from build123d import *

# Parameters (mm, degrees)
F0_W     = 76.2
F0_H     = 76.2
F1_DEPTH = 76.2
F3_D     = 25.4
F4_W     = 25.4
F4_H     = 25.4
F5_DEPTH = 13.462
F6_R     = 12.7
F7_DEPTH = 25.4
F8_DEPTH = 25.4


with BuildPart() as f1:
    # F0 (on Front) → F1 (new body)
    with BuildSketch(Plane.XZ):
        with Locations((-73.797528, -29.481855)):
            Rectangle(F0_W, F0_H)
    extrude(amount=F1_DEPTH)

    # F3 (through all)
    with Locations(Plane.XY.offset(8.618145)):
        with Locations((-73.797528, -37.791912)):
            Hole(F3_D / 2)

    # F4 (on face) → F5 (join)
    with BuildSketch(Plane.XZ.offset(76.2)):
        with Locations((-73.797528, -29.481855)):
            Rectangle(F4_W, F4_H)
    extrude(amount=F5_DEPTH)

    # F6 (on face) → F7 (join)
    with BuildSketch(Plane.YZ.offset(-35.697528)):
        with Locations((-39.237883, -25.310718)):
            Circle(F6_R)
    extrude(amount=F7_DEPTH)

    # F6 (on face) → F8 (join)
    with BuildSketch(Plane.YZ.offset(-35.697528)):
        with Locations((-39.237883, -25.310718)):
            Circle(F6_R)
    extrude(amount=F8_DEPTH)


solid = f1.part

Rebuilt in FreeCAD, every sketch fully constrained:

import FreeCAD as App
import Part
import Sketcher
Q = App.Units.Quantity


def add_polygon(sketch, points):
    """Adds a closed chain of lines whose ends are joined by coincident constraints."""
    first, n = sketch.GeometryCount, len(points)
    for a, b in zip(points, points[1:] + points[:1]):
        sketch.addGeometry(Part.LineSegment(App.Vector(*a, 0), App.Vector(*b, 0)), False)
    for i in range(n):
        sketch.addConstraint(Sketcher.Constraint("Coincident", first + i, 2, first + (i + 1) % n, 1))

doc = App.newDocument("Part")
body = doc.addObject("PartDesign::Body", "Body")

# Sketch on XZ plane
sketch1 = doc.addObject("Sketcher::SketchObject", "Sketch")
body.addObject(sketch1)
sketch1.AttachmentSupport = (doc.XZ_Plane, [""])
sketch1.MapMode = "FlatFace"
add_polygon(sketch1, [(-112, 9), (-112, -68), (-36, -68), (-36, 9)])  # lines 0-3
sketch1.addConstraint([
    Sketcher.Constraint("Vertical", 0),
    Sketcher.Constraint("Horizontal", 1),
    Sketcher.Constraint("Vertical", 2),
    Sketcher.Constraint("Horizontal", 3),
    Sketcher.Constraint("Equal", 3, 0),
    Sketcher.Constraint("DistanceX", 1, 1, 1, 2, Q("3 in")),
    Sketcher.Constraint("DistanceX", 0, 2, -1, 1, 111.897528),
    Sketcher.Constraint("DistanceY", 0, 2, -1, 1, 67.581855),
])
pad1 = doc.addObject("PartDesign::Pad", "Pad")
body.addObject(pad1)
pad1.Profile = sketch1
pad1.Length = Q("3 in")

# Sketch on XY plane
sketch2 = doc.addObject("Sketcher::SketchObject", "Sketch001")
body.addObject(sketch2)
sketch2.AttachmentSupport = (doc.XY_Plane, [""])
sketch2.MapMode = "FlatFace"
sketch2.AttachmentOffset = App.Placement(App.Vector(0, 0, 8.618145), App.Rotation())
sketch2.addGeometry(Part.Circle(App.Vector(-74, -38, 0), App.Vector(0, 0, 1), 13), False)
sketch2.addConstraint([
    Sketcher.Constraint("Diameter", 0, Q("1 in")),
    Sketcher.Constraint("DistanceX", 0, 3, -1, 1, 73.797528),
    Sketcher.Constraint("DistanceY", 0, 3, -1, 1, 37.791912),
])
doc.recompute()
hole = doc.addObject("PartDesign::Hole", "Hole")
body.addObject(hole)
hole.Profile = sketch2
hole.ThreadType = "None"
hole.Diameter = Q("1 in")
hole.DepthType = "ThroughAll"

# Sketch on XZ plane
sketch3 = doc.addObject("Sketcher::SketchObject", "Sketch002")
body.addObject(sketch3)
sketch3.AttachmentSupport = (doc.XZ_Plane, [""])
sketch3.MapMode = "FlatFace"
sketch3.AttachmentOffset = App.Placement(App.Vector(0, 0, 3 * 25.4), App.Rotation())
add_polygon(sketch3, [(-86, -17), (-86, -42), (-61, -42), (-61, -17)])  # lines 0-3
sketch3.addConstraint([
    Sketcher.Constraint("Vertical", 0),
    Sketcher.Constraint("Horizontal", 1),
    Sketcher.Constraint("Vertical", 2),
    Sketcher.Constraint("Horizontal", 3),
    Sketcher.Constraint("Equal", 3, 0),
    Sketcher.Constraint("DistanceX", 1, 1, 1, 2, Q("1 in")),
    Sketcher.Constraint("DistanceX", 0, 2, -1, 1, 86.497528),
    Sketcher.Constraint("DistanceY", 0, 2, -1, 1, 42.181855),
])
pad2 = doc.addObject("PartDesign::Pad", "Pad001")
body.addObject(pad2)
pad2.Profile = sketch3
pad2.Length = Q("0.53 in")

# Sketch on YZ plane
sketch4 = doc.addObject("Sketcher::SketchObject", "Sketch003")
body.addObject(sketch4)
sketch4.AttachmentSupport = (doc.YZ_Plane, [""])
sketch4.MapMode = "FlatFace"
sketch4.AttachmentOffset = App.Placement(App.Vector(0, 0, -35.697528), App.Rotation())
sketch4.addGeometry(Part.Circle(App.Vector(-39, -25, 0), App.Vector(0, 0, 1), 13), False)
sketch4.addConstraint([
    Sketcher.Constraint("Diameter", 0, Q("1 in")),
    Sketcher.Constraint("DistanceY", 0, 3, -1, 1, 25.310718),
    Sketcher.Constraint("DistanceX", 0, 3, -1, 1, 39.237883),
])
pad3 = doc.addObject("PartDesign::Pad", "Pad002")
body.addObject(pad3)
pad3.Profile = sketch4
pad3.Length = Q("1 in")

# Sketch on YZ plane
sketch5 = doc.addObject("Sketcher::SketchObject", "Sketch004")
body.addObject(sketch5)
sketch5.AttachmentSupport = (doc.YZ_Plane, [""])
sketch5.MapMode = "FlatFace"
sketch5.AttachmentOffset = App.Placement(App.Vector(0, 0, -35.697528), App.Rotation())
sketch5.addGeometry(Part.Circle(App.Vector(-39, -25, 0), App.Vector(0, 0, 1), 13), False)
sketch5.addConstraint([
    Sketcher.Constraint("Diameter", 0, Q("1 in")),
    Sketcher.Constraint("DistanceY", 0, 3, -1, 1, 25.310718),
    Sketcher.Constraint("DistanceX", 0, 3, -1, 1, 39.237883),
])
pad4 = doc.addObject("PartDesign::Pad", "Pad003")
body.addObject(pad4)
pad4.Profile = sketch5
pad4.Length = Q("1 in")

doc.recompute()
